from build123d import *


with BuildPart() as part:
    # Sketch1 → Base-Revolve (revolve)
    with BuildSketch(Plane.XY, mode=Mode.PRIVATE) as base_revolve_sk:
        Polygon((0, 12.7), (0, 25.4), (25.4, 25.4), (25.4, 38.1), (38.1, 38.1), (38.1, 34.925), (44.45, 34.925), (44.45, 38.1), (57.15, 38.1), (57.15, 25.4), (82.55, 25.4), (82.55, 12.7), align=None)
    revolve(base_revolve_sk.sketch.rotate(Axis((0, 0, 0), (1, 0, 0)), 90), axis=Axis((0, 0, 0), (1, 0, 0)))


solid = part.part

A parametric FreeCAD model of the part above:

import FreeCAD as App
import Part
import Sketcher

V = App.Vector
Q = App.Units.Quantity


def add_polygon(sketch, points):
    """Adds a closed chain of lines whose ends are joined by coincident constraints."""
    first, n = sketch.GeometryCount, len(points)
    for a, b in zip(points, points[1:] + points[:1]):
        sketch.addGeometry(Part.LineSegment(App.Vector(*a, 0), App.Vector(*b, 0)), False)
    for i in range(n):
        sketch.addConstraint(Sketcher.Constraint("Coincident", first + i, 2, first + (i + 1) % n, 1))

doc = App.newDocument("Part")
body = doc.addObject("PartDesign::Body", "Body")

# Sketch on XY plane
sketch1 = doc.addObject("Sketcher::SketchObject", "Sketch")
body.addObject(sketch1)
sketch1.AttachmentSupport = (doc.XY_Plane, [""])
sketch1.MapMode = "FlatFace"
add_polygon(sketch1, [(0, 25.4), (0, 12.7), (82.5, 12.7), (82.5, 25.4), (57.1, 25.4), (57.1, 38.1), (44.5, 38.1), (44.5, 34.9), (38.1, 34.9), (38.1, 38.1), (25.4, 38.1), (25.4, 25.4)])  # lines 0-11
sketch1.addConstraint(Sketcher.Constraint("Vertical", 0))
sketch1.addConstraint(Sketcher.Constraint("Horizontal", 1))
sketch1.addConstraint(Sketcher.Constraint("Vertical", 2))
sketch1.addConstraint(Sketcher.Constraint("Horizontal", 3))
sketch1.addConstraint(Sketcher.Constraint("Vertical", 4))
sketch1.addConstraint(Sketcher.Constraint("Horizontal", 5))
sketch1.addConstraint(Sketcher.Constraint("Vertical", 6))
sketch1.addConstraint(Sketcher.Constraint("Horizontal", 7))
sketch1.addConstraint(Sketcher.Constraint("Vertical", 8))
sketch1.addConstraint(Sketcher.Constraint("Horizontal", 9))
sketch1.addConstraint(Sketcher.Constraint("Vertical", 10))
sketch1.addConstraint(Sketcher.Constraint("Horizontal", 11))
sketch1.addConstraint(Sketcher.Constraint("PointOnObject", 0, 2, -2))
sketch1.addConstraint(Sketcher.Constraint("Horizontal", 5, 2, 8, 2))
sketch1.addConstraint(Sketcher.Constraint("Horizontal", 3, 2, 10, 2))
sketch1.addConstraint(Sketcher.Constraint("Equal", 5, 9))
sketch1.addConstraint(Sketcher.Constraint("Equal", 3, 11))
sketch1.addConstraint(Sketcher.Constraint("Equal", 9, 0))
sketch1.addConstraint(Sketcher.Constraint("Equal", 2, 4))
sketch1.addConstraint(Sketcher.Constraint("DistanceX", 3, 2, 3, 1, Q("1 in")))
sketch1.addConstraint(Sketcher.Constraint("DistanceX", 5, 2, 5, 1, Q("0.5 in")))
sketch1.addConstraint(Sketcher.Constraint("DistanceY", -1, 1, 2, 2, Q("1 in")))
sketch1.addConstraint(Sketcher.Constraint("DistanceX", 1, 1, 1, 2, Q("3.25 in")))
sketch1.addConstraint(Sketcher.Constraint("DistanceY", 6, 2, 6, 1, Q("0.125 in")))
revolution = doc.addObject("PartDesign::Revolution", "Revolution")
body.addObject(revolution)
revolution.Profile = sketch1
revolution.ReferenceAxis = (sketch1, ["H_Axis"])
revolution.Angle = 360

doc.recompute()
